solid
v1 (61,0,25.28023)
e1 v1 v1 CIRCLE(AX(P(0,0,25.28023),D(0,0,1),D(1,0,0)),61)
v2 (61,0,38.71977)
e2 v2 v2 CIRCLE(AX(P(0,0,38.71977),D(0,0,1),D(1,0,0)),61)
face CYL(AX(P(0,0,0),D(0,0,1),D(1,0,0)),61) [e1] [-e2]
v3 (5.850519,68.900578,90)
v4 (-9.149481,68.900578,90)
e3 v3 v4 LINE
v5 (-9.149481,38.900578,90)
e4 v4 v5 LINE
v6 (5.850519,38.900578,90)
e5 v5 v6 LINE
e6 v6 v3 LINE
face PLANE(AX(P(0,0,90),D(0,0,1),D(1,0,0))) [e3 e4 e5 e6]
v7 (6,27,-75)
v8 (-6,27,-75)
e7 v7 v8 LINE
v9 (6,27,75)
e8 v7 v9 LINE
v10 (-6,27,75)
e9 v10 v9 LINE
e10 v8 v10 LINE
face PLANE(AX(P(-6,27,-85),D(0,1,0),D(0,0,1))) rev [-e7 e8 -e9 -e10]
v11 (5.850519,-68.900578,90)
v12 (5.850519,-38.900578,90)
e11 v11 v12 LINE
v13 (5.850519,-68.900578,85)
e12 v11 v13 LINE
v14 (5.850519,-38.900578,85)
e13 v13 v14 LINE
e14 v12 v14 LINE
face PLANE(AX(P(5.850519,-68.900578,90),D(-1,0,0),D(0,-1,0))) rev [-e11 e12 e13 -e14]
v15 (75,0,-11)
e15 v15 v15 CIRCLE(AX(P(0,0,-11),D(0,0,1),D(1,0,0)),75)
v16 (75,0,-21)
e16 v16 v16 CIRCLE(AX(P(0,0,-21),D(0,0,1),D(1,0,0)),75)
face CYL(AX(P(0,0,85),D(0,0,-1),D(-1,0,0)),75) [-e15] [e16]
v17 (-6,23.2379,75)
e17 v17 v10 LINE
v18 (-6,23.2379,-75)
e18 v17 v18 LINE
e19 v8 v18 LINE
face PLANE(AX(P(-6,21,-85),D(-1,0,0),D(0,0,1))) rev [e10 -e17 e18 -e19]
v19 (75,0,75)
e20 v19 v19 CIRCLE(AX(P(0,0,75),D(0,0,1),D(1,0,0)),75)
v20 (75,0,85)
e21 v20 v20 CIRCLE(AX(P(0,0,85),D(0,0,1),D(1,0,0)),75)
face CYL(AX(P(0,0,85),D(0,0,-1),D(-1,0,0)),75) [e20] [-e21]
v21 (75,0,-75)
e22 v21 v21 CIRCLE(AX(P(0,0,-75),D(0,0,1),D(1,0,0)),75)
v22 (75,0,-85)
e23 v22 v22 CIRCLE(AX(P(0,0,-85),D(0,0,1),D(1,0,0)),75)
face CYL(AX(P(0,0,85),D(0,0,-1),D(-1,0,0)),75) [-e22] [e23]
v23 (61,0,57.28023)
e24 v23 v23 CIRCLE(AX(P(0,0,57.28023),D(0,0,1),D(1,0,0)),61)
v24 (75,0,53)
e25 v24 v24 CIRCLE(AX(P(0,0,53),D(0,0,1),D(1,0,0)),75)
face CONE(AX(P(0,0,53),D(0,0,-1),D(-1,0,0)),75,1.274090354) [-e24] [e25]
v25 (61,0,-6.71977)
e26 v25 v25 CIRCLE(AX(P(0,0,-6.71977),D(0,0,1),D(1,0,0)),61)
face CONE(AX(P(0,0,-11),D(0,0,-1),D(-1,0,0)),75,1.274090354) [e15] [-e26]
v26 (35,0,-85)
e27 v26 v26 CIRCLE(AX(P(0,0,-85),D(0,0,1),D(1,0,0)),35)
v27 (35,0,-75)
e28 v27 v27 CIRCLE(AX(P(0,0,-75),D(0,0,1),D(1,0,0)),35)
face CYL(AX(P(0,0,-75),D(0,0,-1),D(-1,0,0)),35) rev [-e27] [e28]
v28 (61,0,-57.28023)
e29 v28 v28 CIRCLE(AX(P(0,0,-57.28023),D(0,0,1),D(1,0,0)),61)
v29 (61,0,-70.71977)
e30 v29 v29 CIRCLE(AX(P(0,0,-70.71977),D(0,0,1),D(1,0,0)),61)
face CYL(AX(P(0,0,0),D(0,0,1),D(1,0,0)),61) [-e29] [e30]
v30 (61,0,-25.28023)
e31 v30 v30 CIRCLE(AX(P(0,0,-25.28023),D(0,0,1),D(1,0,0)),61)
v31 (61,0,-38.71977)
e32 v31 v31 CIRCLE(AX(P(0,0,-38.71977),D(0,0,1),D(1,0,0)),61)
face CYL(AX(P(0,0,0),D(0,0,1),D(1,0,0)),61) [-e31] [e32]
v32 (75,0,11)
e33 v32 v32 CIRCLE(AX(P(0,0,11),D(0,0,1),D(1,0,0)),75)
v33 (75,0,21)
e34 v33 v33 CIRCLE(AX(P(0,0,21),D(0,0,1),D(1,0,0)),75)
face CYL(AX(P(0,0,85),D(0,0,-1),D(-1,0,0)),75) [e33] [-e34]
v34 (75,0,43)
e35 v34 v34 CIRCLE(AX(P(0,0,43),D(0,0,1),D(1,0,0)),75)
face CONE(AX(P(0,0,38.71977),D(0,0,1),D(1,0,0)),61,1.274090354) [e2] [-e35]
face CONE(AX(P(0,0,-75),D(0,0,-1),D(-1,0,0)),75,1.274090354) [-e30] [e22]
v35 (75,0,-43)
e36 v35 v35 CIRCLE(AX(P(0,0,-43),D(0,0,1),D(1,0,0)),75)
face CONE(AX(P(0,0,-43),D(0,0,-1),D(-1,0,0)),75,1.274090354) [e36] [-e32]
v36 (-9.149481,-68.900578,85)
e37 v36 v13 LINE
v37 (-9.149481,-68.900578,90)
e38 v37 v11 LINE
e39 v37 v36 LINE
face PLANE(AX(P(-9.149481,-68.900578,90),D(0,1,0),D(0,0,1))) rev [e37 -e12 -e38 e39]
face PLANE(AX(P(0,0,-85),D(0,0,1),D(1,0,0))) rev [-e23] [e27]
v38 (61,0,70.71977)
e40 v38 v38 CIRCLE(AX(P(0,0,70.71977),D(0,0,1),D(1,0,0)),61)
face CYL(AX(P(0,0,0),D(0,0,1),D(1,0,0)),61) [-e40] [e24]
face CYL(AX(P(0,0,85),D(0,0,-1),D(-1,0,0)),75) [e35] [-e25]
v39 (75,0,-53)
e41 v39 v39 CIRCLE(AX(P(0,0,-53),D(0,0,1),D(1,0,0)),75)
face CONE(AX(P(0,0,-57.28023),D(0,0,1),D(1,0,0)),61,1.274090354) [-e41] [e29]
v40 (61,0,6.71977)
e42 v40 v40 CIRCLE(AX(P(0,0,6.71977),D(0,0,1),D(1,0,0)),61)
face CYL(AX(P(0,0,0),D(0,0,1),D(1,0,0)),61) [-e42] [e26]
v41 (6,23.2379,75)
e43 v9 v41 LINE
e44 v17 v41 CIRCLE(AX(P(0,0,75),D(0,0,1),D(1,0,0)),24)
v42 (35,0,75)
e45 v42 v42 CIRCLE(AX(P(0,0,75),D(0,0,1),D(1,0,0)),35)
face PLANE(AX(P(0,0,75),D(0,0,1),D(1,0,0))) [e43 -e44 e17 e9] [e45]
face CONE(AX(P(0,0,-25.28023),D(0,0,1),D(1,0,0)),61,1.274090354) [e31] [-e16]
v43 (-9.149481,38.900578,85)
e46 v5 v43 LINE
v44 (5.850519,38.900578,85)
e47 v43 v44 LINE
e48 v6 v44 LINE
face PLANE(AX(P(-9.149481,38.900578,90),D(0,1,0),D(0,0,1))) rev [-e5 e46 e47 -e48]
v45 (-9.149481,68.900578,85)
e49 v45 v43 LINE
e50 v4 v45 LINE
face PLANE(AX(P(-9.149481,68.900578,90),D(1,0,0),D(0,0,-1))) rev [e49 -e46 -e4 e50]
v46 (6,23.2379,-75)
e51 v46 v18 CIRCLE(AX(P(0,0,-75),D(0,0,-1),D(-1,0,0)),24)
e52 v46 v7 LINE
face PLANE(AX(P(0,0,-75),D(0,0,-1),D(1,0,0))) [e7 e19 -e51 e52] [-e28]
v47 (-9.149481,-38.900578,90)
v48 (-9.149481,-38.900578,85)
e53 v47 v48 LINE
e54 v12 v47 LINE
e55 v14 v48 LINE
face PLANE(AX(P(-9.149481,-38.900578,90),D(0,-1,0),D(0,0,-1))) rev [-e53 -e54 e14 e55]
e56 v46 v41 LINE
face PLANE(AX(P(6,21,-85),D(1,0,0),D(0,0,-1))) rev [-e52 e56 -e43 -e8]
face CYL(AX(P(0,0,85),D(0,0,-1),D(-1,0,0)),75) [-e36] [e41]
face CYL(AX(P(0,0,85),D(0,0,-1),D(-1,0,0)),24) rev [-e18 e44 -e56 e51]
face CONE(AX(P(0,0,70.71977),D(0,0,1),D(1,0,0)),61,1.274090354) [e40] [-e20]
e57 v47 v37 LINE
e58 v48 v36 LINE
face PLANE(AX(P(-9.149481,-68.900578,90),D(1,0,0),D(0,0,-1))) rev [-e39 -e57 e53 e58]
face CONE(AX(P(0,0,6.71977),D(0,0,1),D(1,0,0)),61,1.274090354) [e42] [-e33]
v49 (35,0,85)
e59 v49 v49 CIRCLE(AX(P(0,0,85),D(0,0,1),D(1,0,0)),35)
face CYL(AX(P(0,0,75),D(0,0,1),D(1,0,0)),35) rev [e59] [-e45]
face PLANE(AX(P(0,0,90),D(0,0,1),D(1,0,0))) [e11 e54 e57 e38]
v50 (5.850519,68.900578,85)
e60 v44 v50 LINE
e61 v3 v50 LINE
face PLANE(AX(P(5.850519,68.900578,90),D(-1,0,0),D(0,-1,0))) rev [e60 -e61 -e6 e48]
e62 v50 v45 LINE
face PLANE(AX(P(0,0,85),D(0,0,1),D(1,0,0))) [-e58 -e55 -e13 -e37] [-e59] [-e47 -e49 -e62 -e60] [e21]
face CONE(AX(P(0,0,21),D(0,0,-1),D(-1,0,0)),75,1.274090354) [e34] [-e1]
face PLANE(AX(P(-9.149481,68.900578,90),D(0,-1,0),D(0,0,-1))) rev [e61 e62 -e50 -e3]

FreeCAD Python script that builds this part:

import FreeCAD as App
import Part
import Sketcher
Q = App.Units.Quantity

doc = App.newDocument("Part")
body = doc.addObject("PartDesign::Body", "Body")

sketch1 = doc.addObject("Sketcher::SketchObject", "Sketch")
body.addObject(sketch1)
sketch1.AttachmentSupport = (doc.XY_Plane, [""])
sketch1.MapMode = "FlatFace"
sketch1.addGeometry([
    Part.Circle(App.Vector(0, 0, 0), App.Vector(0, 0, 1), 75),
    Part.Circle(App.Vector(0, 0, 0), App.Vector(0, 0, 1), 24),
], False)
sketch1.addConstraint([
    Sketcher.Constraint("Coincident", 0, 3, -1, 1),
    Sketcher.Constraint("Coincident", 1, 3, -1, 1),
    Sketcher.Constraint("Diameter", 0, 150.0),
    Sketcher.Constraint("Diameter", 1, 48.0),
])
pad1 = doc.addObject("PartDesign::Pad", "Pad")
body.addObject(pad1)
pad1.Profile = sketch1
pad1.Length = 170
pad1.Midplane = True

sketch2 = doc.addObject("Sketcher::SketchObject", "Sketch001")
body.addObject(sketch2)
sketch2.AttachmentSupport = (doc.XZ_Plane, [""])
sketch2.MapMode = "FlatFace"
sketch2.addGeometry([
    Part.LineSegment(App.Vector(75, -75, 0), App.Vector(61, -70.71977, 0)),
    Part.LineSegment(App.Vector(61, -70.71977, 0), App.Vector(61, -57.28023, 0)),
    Part.LineSegment(App.Vector(61, -57.28023, 0), App.Vector(75, -53, 0)),
    Part.LineSegment(App.Vector(75, -53, 0), App.Vector(75, -75, 0)),
    Part.LineSegment(App.Vector(75, -21, 0), App.Vector(75, -43, 0)),
    Part.LineSegment(App.Vector(75, -43, 0), App.Vector(61, -38.71977, 0)),
    Part.LineSegment(App.Vector(61, -38.71977, 0), App.Vector(61, -25.28023, 0)),
    Part.LineSegment(App.Vector(61, -25.28023, 0), App.Vector(75, -21, 0)),
    Part.LineSegment(App.Vector(75, 43, 0), App.Vector(75, 21, 0)),
    Part.LineSegment(App.Vector(75, 21, 0), App.Vector(61, 25.28023, 0)),
    Part.LineSegment(App.Vector(61, 25.28023, 0), App.Vector(61, 38.71977, 0)),
    Part.LineSegment(App.Vector(61, 38.71977, 0), App.Vector(75, 43, 0)),
    Part.LineSegment(App.Vector(75, -11, 0), App.Vector(61, -6.71977, 0)),
    Part.LineSegment(App.Vector(61, -6.71977, 0), App.Vector(61, 6.71977, 0)),
    Part.LineSegment(App.Vector(61, 6.71977, 0), App.Vector(75, 11, 0)),
    Part.LineSegment(App.Vector(75, 11, 0), App.Vector(75, -11, 0)),
    Part.LineSegment(App.Vector(75, 75, 0), App.Vector(75, 53, 0)),
    Part.LineSegment(App.Vector(75, 53, 0), App.Vector(61, 57.28023, 0)),
    Part.LineSegment(App.Vector(61, 57.28023, 0), App.Vector(61, 70.71977, 0)),
    Part.LineSegment(App.Vector(61, 70.71977, 0), App.Vector(75, 75, 0)),
], False)
sketch2.addConstraint([
    Sketcher.Constraint("Coincident", 0, 2, 1, 1),
    Sketcher.Constraint("Coincident", 1, 2, 2, 1),
    Sketcher.Constraint("Coincident", 2, 2, 3, 1),
    Sketcher.Constraint("Coincident", 3, 2, 0, 1),
    Sketcher.Constraint("Coincident", 4, 2, 5, 1),
    Sketcher.Constraint("Coincident", 5, 2, 6, 1),
    Sketcher.Constraint("Coincident", 6, 2, 7, 1),
    Sketcher.Constraint("Coincident", 7, 2, 4, 1),
    Sketcher.Constraint("Coincident", 8, 2, 9, 1),
    Sketcher.Constraint("Coincident", 9, 2, 10, 1),
    Sketcher.Constraint("Coincident", 10, 2, 11, 1),
    Sketcher.Constraint("Coincident", 11, 2, 8, 1),
    Sketcher.Constraint("Coincident", 12, 2, 13, 1),
    Sketcher.Constraint("Coincident", 13, 2, 14, 1),
    Sketcher.Constraint("Coincident", 14, 2, 15, 1),
    Sketcher.Constraint("Coincident", 15, 2, 12, 1),
    Sketcher.Constraint("Coincident", 16, 2, 17, 1),
    Sketcher.Constraint("Coincident", 17, 2, 18, 1),
    Sketcher.Constraint("Coincident", 18, 2, 19, 1),
    Sketcher.Constraint("Coincident", 19, 2, 16, 1),
    Sketcher.Constraint("Vertical", 1),
    Sketcher.Constraint("Vertical", 3),
    Sketcher.Constraint("Vertical", 4),
    Sketcher.Constraint("Vertical", 6),
    Sketcher.Constraint("Vertical", 8),
    Sketcher.Constraint("Vertical", 10),
    Sketcher.Constraint("Vertical", 13),
    Sketcher.Constraint("Vertical", 15),
    Sketcher.Constraint("Vertical", 16),
    Sketcher.Constraint("Vertical", 18),
    Sketcher.Constraint("Symmetric", 7, 2, 8, 2, -1),
    Sketcher.Constraint("Symmetric", 6, 2, 9, 2, -1),
    Sketcher.Constraint("Symmetric", 2, 2, 16, 2, -1),
    Sketcher.Constraint("Symmetric", 1, 2, 17, 2, -1),
    Sketcher.Constraint("Parallel", 0, 5),
    Sketcher.Constraint("Parallel", 2, 7),
    Sketcher.Constraint("Parallel", 5, 9),
    Sketcher.Constraint("Parallel", 7, 11),
    Sketcher.Constraint("Parallel", 9, 12),
    Sketcher.Constraint("Parallel", 11, 14),
    Sketcher.Constraint("Parallel", 14, 19),
    Sketcher.Constraint("Vertical", 3, 2, 4, 2),
    Sketcher.Constraint("Vertical", 1, 2, 5, 2),
    Sketcher.Constraint("Vertical", 10, 2, 12, 2),
    Sketcher.Constraint("Vertical", 11, 2, 14, 2),
    Sketcher.Constraint("Equal", 3, 4),
    Sketcher.Constraint("Equal", 4, 8),
    Sketcher.Constraint("Equal", 10, 13),
    Sketcher.Constraint("Equal", 15, 16),
    Sketcher.Constraint("DistanceY", 3, 2, 3, 1, 22.0),
    Sketcher.Constraint("Angle", 0, Q("163 deg")),
    Sketcher.Constraint("DistanceX", -1, 1, 0, 2, 61.0),
    Sketcher.Constraint("DistanceX", -1, 1, 2, 2, 75.0),
    Sketcher.Constraint("DistanceY", 2, 2, -1, 1, 53.0),
    Sketcher.Constraint("DistanceY", 4, 2, -1, 1, 43.0),
    Sketcher.Constraint("DistanceY", -1, 1, 14, 2, 11.0),
])
groove = doc.addObject("PartDesign::Groove", "Groove")
body.addObject(groove)
groove.Profile = sketch2
groove.ReferenceAxis = (sketch2, ["V_Axis"])
groove.Angle = 360

sketch3 = doc.addObject("Sketcher::SketchObject", "Sketch002")
body.addObject(sketch3)
sketch3.AttachmentSupport = (doc.XY_Plane, [""])
sketch3.MapMode = "FlatFace"
sketch3.AttachmentOffset = App.Placement(App.Vector(0, 0, 85), App.Rotation())
sketch3.addGeometry([
    Part.LineSegment(App.Vector(-6, 27, 0), App.Vector(-6, 21, 0)),
    Part.LineSegment(App.Vector(-6, 21, 0), App.Vector(6, 21, 0)),
    Part.LineSegment(App.Vector(6, 21, 0), App.Vector(6, 27, 0)),
    Part.LineSegment(App.Vector(6, 27, 0), App.Vector(-6, 27, 0)),
], False)
sketch3.addConstraint([
    Sketcher.Constraint("Coincident", 0, 2, 1, 1),
    Sketcher.Constraint("Coincident", 1, 2, 2, 1),
    Sketcher.Constraint("Coincident", 2, 2, 3, 1),
    Sketcher.Constraint("Coincident", 3, 2, 0, 1),
    Sketcher.Constraint("Vertical", 0),
    Sketcher.Constraint("Horizontal", 1),
    Sketcher.Constraint("Vertical", 2),
    Sketcher.Constraint("Horizontal", 3),
    Sketcher.Constraint("DistanceX", 1, 1, 1, 2, 12.0),
    Sketcher.Constraint("DistanceY", 0, 2, 0, 1, 6.0),
    Sketcher.Constraint("DistanceX", 0, 2, -1, 1, 6.0),
    Sketcher.Constraint("DistanceY", -1, 1, 0, 2, 21.0),
])
pocket1 = doc.addObject("PartDesign::Pocket", "Pocket")
body.addObject(pocket1)
pocket1.Profile = sketch3
pocket1.Type = "ThroughAll"

sketch4 = doc.addObject("Sketcher::SketchObject", "Sketch003")
body.addObject(sketch4)
sketch4.AttachmentSupport = (doc.XY_Plane, [""])
sketch4.MapMode = "FlatFace"
sketch4.AttachmentOffset = App.Placement(App.Vector(0, 0, 85), App.Rotation())
sketch4.addGeometry([
    Part.Circle(App.Vector(0, 0, 0), App.Vector(0, 0, 1), 35),
    Part.Circle(App.Vector(0, 0, 0), App.Vector(0, 0, 1), 20),
], False)
sketch4.addConstraint([
    Sketcher.Constraint("Coincident", 0, 3, -1, 1),
    Sketcher.Constraint("Coincident", 1, 3, -1, 1),
    Sketcher.Constraint("Diameter", 0, 70.0),
    Sketcher.Constraint("Diameter", 1, 40.0),
])
pocket2 = doc.addObject("PartDesign::Pocket", "Pocket001")
body.addObject(pocket2)
pocket2.Profile = sketch4
pocket2.Length = 10
doc.recompute()

mirrored = doc.addObject("PartDesign::Mirrored", "Mirrored")
body.addObject(mirrored)
mirrored.Originals = [pocket2]
mirrored.MirrorPlane = (doc.XY_Plane, [""])
body.Tip = mirrored

sketch5 = doc.addObject("Sketcher::SketchObject", "Sketch004")
body.addObject(sketch5)
sketch5.AttachmentSupport = (doc.XY_Plane, [""])
sketch5.MapMode = "FlatFace"
sketch5.AttachmentOffset = App.Placement(App.Vector(0, 0, 85), App.Rotation())
sketch5.addGeometry([
    Part.LineSegment(App.Vector(-9.149481, 68.900578, 0), App.Vector(-9.149481, 38.900578, 0)),
    Part.LineSegment(App.Vector(-9.149481, 38.900578, 0), App.Vector(5.850519, 38.900578, 0)),
    Part.LineSegment(App.Vector(5.850519, 38.900578, 0), App.Vector(5.850519, 68.900578, 0)),
    Part.LineSegment(App.Vector(5.850519, 68.900578, 0), App.Vector(-9.149481, 68.900578, 0)),
    Part.LineSegment(App.Vector(-9.149481, -38.900578, 0), App.Vector(-9.149481, -68.900578, 0)),
    Part.LineSegment(App.Vector(-9.149481, -68.900578, 0), App.Vector(5.850519, -68.900578, 0)),
    Part.LineSegment(App.Vector(5.850519, -68.900578, 0), App.Vector(5.850519, -38.900578, 0)),
    Part.LineSegment(App.Vector(5.850519, -38.900578, 0), App.Vector(-9.149481, -38.900578, 0)),
], False)
sketch5.addConstraint([
    Sketcher.Constraint("Coincident", 0, 2, 1, 1),
    Sketcher.Constraint("Coincident", 1, 2, 2, 1),
    Sketcher.Constraint("Coincident", 2, 2, 3, 1),
    Sketcher.Constraint("Coincident", 3, 2, 0, 1),
    Sketcher.Constraint("Coincident", 4, 2, 5, 1),
    Sketcher.Constraint("Coincident", 5, 2, 6, 1),
    Sketcher.Constraint("Coincident", 6, 2, 7, 1),
    Sketcher.Constraint("Coincident", 7, 2, 4, 1),
    Sketcher.Constraint("Vertical", 0),
    Sketcher.Constraint("Horizontal", 1),
    Sketcher.Constraint("Vertical", 2),
    Sketcher.Constraint("Horizontal", 3),
    Sketcher.Constraint("Vertical", 4),
    Sketcher.Constraint("Horizontal", 5),
    Sketcher.Constraint("Vertical", 6),
    Sketcher.Constraint("Horizontal", 7),
    Sketcher.Constraint("Symmetric", 3, 2, 4, 2, -1),
    Sketcher.Constraint("Symmetric", 1, 2, 6, 2, -1),
    Sketcher.Constraint("DistanceX", 1, 1, 1, 2, 15.0),
    Sketcher.Constraint("DistanceY", 0, 2, 0, 1, 30.0),
    Sketcher.Constraint("DistanceX", 0, 2, -1, 1, 9.149481),
    Sketcher.Constraint("DistanceY", -1, 1, 0, 2, 38.900578),
])
pad2 = doc.addObject("PartDesign::Pad", "Pad001")
body.addObject(pad2)
pad2.Profile = sketch5
pad2.Length = 5

doc.recompute()
